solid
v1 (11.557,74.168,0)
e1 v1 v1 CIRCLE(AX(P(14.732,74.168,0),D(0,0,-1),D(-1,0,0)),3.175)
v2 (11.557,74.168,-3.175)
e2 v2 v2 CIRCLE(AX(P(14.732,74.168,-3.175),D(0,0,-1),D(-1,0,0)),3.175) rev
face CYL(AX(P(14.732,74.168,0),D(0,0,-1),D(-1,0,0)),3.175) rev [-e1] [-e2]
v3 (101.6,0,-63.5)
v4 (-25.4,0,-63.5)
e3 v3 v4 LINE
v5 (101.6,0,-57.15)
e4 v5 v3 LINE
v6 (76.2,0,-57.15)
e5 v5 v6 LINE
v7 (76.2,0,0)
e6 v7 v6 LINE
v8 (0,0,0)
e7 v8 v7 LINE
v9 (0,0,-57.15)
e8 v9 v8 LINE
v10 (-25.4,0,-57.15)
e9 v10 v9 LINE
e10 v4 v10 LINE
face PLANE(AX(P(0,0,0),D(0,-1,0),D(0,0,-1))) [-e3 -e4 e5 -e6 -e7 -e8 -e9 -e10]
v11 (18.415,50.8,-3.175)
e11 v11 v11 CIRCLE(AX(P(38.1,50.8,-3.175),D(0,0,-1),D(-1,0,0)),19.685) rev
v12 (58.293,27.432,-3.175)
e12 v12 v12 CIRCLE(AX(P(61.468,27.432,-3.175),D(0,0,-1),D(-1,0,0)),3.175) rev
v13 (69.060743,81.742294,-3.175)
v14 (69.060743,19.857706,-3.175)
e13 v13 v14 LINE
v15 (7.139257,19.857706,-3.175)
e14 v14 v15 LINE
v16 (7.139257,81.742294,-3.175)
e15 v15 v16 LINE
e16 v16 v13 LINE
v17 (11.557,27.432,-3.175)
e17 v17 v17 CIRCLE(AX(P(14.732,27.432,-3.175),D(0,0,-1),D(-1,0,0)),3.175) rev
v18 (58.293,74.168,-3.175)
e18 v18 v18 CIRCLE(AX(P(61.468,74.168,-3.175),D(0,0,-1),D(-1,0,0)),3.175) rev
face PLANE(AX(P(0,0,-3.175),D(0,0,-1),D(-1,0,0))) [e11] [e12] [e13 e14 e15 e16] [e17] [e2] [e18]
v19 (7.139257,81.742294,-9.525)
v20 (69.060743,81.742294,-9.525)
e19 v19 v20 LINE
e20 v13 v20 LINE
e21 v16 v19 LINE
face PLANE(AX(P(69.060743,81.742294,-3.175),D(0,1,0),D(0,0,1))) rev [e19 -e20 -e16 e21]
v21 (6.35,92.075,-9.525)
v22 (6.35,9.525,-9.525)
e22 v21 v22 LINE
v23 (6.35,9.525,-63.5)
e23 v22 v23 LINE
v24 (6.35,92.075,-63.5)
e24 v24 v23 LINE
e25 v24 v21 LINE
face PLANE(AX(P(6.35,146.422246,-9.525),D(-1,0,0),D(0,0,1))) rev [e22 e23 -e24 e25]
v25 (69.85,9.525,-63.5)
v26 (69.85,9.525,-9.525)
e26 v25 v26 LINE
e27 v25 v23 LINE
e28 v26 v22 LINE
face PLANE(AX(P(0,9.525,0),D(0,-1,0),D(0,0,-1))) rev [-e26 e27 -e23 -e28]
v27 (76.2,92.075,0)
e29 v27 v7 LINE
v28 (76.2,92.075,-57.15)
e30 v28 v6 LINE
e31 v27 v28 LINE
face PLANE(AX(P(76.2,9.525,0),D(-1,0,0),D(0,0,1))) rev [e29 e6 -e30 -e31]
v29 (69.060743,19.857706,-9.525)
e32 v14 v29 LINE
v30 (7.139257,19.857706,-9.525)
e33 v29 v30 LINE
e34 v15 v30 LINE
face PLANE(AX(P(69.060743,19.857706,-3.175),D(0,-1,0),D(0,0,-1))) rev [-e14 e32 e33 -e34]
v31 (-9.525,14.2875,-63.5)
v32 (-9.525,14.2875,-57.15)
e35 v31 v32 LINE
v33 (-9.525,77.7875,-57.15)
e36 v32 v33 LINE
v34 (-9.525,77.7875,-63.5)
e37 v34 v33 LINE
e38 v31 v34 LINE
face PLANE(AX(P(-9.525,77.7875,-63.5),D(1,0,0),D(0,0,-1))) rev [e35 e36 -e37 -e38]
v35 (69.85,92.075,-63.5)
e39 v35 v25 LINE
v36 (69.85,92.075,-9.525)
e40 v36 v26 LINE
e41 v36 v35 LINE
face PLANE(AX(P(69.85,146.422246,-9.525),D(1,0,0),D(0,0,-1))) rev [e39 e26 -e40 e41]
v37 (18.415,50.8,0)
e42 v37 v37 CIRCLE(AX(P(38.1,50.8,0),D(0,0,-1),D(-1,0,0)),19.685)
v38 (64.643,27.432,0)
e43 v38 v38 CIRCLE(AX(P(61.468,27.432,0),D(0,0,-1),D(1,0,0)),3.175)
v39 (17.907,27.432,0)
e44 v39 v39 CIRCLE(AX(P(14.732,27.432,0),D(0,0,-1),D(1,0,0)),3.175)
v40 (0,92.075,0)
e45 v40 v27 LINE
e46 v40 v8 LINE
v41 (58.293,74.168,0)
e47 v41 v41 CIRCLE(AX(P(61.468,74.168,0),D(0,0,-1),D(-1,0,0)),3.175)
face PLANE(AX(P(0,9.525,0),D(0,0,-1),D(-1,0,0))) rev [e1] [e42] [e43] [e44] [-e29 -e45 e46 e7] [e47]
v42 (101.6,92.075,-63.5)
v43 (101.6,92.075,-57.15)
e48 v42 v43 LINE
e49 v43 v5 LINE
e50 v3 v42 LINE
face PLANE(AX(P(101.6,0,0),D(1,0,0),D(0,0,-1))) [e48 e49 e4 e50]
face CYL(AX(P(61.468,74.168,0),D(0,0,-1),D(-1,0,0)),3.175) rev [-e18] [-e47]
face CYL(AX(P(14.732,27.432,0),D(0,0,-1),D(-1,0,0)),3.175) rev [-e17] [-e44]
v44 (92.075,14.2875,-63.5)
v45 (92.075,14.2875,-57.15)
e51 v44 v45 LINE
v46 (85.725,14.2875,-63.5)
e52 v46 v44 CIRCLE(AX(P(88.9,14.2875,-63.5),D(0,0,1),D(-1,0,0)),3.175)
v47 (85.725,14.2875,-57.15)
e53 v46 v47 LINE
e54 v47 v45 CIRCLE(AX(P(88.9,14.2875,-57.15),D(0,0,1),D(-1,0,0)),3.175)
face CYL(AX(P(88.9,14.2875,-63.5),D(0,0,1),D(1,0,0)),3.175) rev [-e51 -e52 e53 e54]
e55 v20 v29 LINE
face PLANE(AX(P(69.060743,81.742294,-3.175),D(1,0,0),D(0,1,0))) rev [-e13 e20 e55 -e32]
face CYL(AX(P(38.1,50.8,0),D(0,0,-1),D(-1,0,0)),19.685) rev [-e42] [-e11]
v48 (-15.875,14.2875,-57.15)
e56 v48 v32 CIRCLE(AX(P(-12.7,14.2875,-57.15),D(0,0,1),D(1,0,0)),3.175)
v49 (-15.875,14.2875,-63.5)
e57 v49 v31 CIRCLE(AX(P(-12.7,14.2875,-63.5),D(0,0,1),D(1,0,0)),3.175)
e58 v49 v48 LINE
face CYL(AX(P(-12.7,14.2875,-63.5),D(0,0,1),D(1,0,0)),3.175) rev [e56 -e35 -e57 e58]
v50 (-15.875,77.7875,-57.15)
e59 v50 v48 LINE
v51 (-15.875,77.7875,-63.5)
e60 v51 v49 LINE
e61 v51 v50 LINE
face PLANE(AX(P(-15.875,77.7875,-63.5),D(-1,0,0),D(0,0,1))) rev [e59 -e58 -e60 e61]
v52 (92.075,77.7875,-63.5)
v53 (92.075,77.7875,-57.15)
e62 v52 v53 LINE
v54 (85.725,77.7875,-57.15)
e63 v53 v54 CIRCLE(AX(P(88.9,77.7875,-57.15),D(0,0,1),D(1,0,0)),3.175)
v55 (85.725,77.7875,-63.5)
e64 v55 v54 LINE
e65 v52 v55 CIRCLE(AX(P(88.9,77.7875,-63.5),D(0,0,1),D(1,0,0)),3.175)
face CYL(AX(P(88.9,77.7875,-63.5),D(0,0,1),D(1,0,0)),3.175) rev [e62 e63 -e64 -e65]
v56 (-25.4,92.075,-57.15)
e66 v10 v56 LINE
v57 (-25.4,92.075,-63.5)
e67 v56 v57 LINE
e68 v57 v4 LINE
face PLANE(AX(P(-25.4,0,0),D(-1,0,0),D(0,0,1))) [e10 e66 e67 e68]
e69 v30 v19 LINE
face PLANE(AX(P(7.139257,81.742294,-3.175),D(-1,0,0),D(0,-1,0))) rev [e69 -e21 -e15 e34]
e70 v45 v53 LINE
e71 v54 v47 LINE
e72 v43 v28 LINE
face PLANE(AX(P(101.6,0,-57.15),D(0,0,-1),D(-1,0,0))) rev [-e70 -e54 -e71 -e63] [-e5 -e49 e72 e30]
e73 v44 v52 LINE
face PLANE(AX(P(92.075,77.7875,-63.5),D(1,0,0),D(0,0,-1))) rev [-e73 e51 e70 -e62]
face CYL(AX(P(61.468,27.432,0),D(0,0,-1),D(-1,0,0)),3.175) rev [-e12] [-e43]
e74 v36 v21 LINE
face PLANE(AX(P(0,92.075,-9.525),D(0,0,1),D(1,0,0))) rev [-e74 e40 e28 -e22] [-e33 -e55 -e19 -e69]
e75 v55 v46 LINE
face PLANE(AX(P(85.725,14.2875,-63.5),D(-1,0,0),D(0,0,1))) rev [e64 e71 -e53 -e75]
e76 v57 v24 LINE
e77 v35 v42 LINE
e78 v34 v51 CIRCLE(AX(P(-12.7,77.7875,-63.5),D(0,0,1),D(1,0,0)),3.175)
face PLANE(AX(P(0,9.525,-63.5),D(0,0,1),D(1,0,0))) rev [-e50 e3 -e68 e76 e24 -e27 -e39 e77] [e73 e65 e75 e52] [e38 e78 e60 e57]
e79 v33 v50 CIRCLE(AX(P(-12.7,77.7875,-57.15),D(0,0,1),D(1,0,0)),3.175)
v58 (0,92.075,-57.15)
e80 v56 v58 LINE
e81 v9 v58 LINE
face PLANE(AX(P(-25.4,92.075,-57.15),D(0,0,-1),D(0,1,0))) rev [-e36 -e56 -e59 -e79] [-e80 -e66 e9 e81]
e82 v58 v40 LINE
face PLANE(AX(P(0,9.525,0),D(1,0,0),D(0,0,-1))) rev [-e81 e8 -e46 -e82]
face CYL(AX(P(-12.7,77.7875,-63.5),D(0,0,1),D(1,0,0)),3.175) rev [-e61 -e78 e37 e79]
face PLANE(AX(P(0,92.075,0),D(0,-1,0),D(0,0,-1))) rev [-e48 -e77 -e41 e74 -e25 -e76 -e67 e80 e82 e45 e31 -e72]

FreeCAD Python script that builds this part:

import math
import FreeCAD as App
import Part
import Sketcher
from FreeCAD import Vector
Q = App.Units.Quantity


def add_polygon(sketch, points):
    """Adds a closed chain of lines whose ends are joined by coincident constraints."""
    first, n = sketch.GeometryCount, len(points)
    for a, b in zip(points, points[1:] + points[:1]):
        sketch.addGeometry(Part.LineSegment(App.Vector(*a, 0), App.Vector(*b, 0)), False)
    for i in range(n):
        sketch.addConstraint(Sketcher.Constraint("Coincident", first + i, 2, first + (i + 1) % n, 1))

doc = App.newDocument("Part")
params = doc.addObject("Spreadsheet::Sheet", "Params")
for row, (alias, value) in enumerate([
    ("sketch1_width", "3 in"),
    ("sketch1_height", "2.5 in"),
    ("pad1_length", "0.375 in"),
    ("sketch2_width", "3 in"),
    ("sketch2_height", "0.375 in"),
    ("pad2_length", "3.25 in"),
    ("sketch3_diameter", "1.55 in"),
    ("sketch3_diameter2", "0.25 in"),
    ("pocket2_length", "0.25 in"),
    ("sketch5_width", "0.25 in"),
    ("sketch5_height", "2.125 in"),
    ("pad3_length", "3.25 in"),
    ("sketch6_height", "0.25 in"),
    ("sketch6_width", "3.625 in"),
    ("pad4_length", "1 in"),
    ("sketch7_height", "0.25 in"),
    ("sketch7_width", "3.625 in"),
    ("pad5_length", "1 in"),
    ("sketch8_height", "2.5 in"),
    ("sketch8_radius", "0.125 in"),
], start=1):
    params.set(f"A{row}", alias)
    params.set(f"B{row}", "=" + value)
    params.setAlias(f"B{row}", alias)

body = doc.addObject("PartDesign::Body", "Body")

# Sketch on XZ plane
sketch1 = doc.addObject("Sketcher::SketchObject", "Sketch")
body.addObject(sketch1)
sketch1.AttachmentSupport = (doc.XZ_Plane, [""])
sketch1.MapMode = "FlatFace"
add_polygon(sketch1, [(0, -64), (0, 0), (76, 0), (76, -64)])  # lines 0-3
sketch1.addConstraint([
    Sketcher.Constraint("Vertical", 0),
    Sketcher.Constraint("Horizontal", 1),
    Sketcher.Constraint("Vertical", 2),
    Sketcher.Constraint("Horizontal", 3),
    Sketcher.Constraint("Coincident", 0, 2, -1, 1),
    Sketcher.Constraint("DistanceX", 1, 1, 1, 2, Q("3 in")),
    Sketcher.Constraint("DistanceY", 0, 1, 0, 2, Q("2.5 in")),
])
sketch1.setExpression("Constraints[9]", "Params.sketch1_width")
sketch1.setExpression("Constraints[10]", "Params.sketch1_height")
pad1 = doc.addObject("PartDesign::Pad", "Pad")
body.addObject(pad1)
pad1.Profile = sketch1
pad1.setExpression("Length", "Params.pad1_length")
pad1.Reversed = True

# Sketch on XZ plane
sketch2 = doc.addObject("Sketcher::SketchObject", "Sketch001")
body.addObject(sketch2)
sketch2.AttachmentSupport = (doc.XZ_Plane, [""])
sketch2.MapMode = "FlatFace"
sketch2.AttachmentOffset = App.Placement(Vector(0, 0, -0.375 * 25.4), App.Rotation())
add_polygon(sketch2, [(0, -10), (0, 0), (76, 0), (76, -10)])  # lines 0-3
sketch2.addConstraint([
    Sketcher.Constraint("Vertical", 0),
    Sketcher.Constraint("Horizontal", 1),
    Sketcher.Constraint("Vertical", 2),
    Sketcher.Constraint("Horizontal", 3),
    Sketcher.Constraint("Coincident", 0, 2, -1, 1),
    Sketcher.Constraint("DistanceX", 1, 1, 1, 2, Q("3 in")),
    Sketcher.Constraint("DistanceY", 0, 1, 0, 2, Q("0.375 in")),
])
sketch2.setExpression("Constraints[9]", "Params.sketch2_width")
sketch2.setExpression("Constraints[10]", "Params.sketch2_height")
pad2 = doc.addObject("PartDesign::Pad", "Pad001")
body.addObject(pad2)
pad2.Profile = sketch2
pad2.setExpression("Length", "Params.pad2_length")
pad2.Reversed = True

# Sketch on XY plane
sketch3 = doc.addObject("Sketcher::SketchObject", "Sketch002")
body.addObject(sketch3)
sketch3.AttachmentSupport = (doc.XY_Plane, [""])
sketch3.MapMode = "FlatFace"
sketch3.AttachmentOffset = App.Placement(Vector(0, 0, -0.375 * 25.4), App.Rotation())
sketch3.addGeometry([
    Part.Circle(Vector(38.1, 50.8, 0), Vector(0, 0, 1), 19.7),  # 0
    Part.Circle(Vector(61.5, 74.2, 0), Vector(0, 0, 1), 3.2),  # 1
    Part.Circle(Vector(14.7, 74.2, 0), Vector(0, 0, 1), 3.2),  # 2
    Part.Circle(Vector(14.7, 27.4, 0), Vector(0, 0, 1), 3.2),  # 3
    Part.Circle(Vector(61.5, 27.4, 0), Vector(0, 0, 1), 3.2),  # 4
], False)
sketch3.addConstraint([
    Sketcher.Constraint("Equal", 1, 2),
    Sketcher.Constraint("Equal", 2, 3),
    Sketcher.Constraint("Equal", 3, 4),
    Sketcher.Constraint("Horizontal", 1, 3, 2, 3),
    Sketcher.Constraint("Horizontal", 3, 3, 4, 3),
    Sketcher.Constraint("Vertical", 2, 3, 3, 3),
    Sketcher.Constraint("Vertical", 1, 3, 4, 3),
    Sketcher.Constraint("Diameter", 0, Q("1.55 in")),
    Sketcher.Constraint("Diameter", 1, Q("0.25 in")),
    Sketcher.Constraint("DistanceY", -1, 1, 0, 3, Q("2 in")),
    Sketcher.Constraint("DistanceX", -1, 1, 0, 3, Q("1.5 in")),
    Sketcher.Constraint("DistanceX", -1, 1, 1, 3, Q("2.42 in")),
    Sketcher.Constraint("DistanceY", -1, 1, 1, 3, Q("2.92 in")),
    Sketcher.Constraint("DistanceX", -1, 1, 2, 3, Q("0.58 in")),
    Sketcher.Constraint("DistanceY", -1, 1, 3, 3, Q("1.08 in")),
])
sketch3.setExpression("Constraints[7]", "Params.sketch3_diameter")
sketch3.setExpression("Constraints[8]", "Params.sketch3_diameter2")
pocket1 = doc.addObject("PartDesign::Pocket", "Pocket")
body.addObject(pocket1)
pocket1.Profile = sketch3
pocket1.Type = "ThroughAll"
pocket1.Reversed = True

# Sketch on XY plane
sketch4 = doc.addObject("Sketcher::SketchObject", "Sketch003")
body.addObject(sketch4)
sketch4.AttachmentSupport = (doc.XY_Plane, [""])
sketch4.MapMode = "FlatFace"
sketch4.AttachmentOffset = App.Placement(Vector(0, 0, -0.375 * 25.4), App.Rotation())
add_polygon(sketch4, [(69, 82), (69, 20), (7, 20), (7, 82)])  # lines 0-3
sketch4.addConstraint([
    Sketcher.Constraint("Vertical", 0),
    Sketcher.Constraint("Horizontal", 1),
    Sketcher.Constraint("Vertical", 2),
    Sketcher.Constraint("Horizontal", 3),
    Sketcher.Constraint("DistanceX", 1, 2, 1, 1, 61.921487),
    Sketcher.Constraint("DistanceY", 0, 2, 0, 1, 61.884587),
    Sketcher.Constraint("DistanceX", -1, 1, 0, 2, 69.060743),
    Sketcher.Constraint("DistanceY", -1, 1, 0, 2, 19.857706),
])
pocket2 = doc.addObject("PartDesign::Pocket", "Pocket001")
body.addObject(pocket2)
pocket2.Profile = sketch4
pocket2.setExpression("Length", "Params.pocket2_length")
pocket2.Reversed = True

# Sketch on XZ plane
sketch5 = doc.addObject("Sketcher::SketchObject", "Sketch004")
body.addObject(sketch5)
sketch5.AttachmentSupport = (doc.XZ_Plane, [""])
sketch5.MapMode = "FlatFace"
sketch5.AttachmentOffset = App.Placement(Vector(0, 0, -0.375 * 25.4), App.Rotation())
add_polygon(sketch5, [(70, -64), (70, -10), (76, -10), (76, -64)])  # lines 0-3
add_polygon(sketch5, [(0, -64), (0, -10), (6, -10), (6, -64)])  # lines 4-7
sketch5.addConstraint([
    Sketcher.Constraint("Vertical", 0),
    Sketcher.Constraint("Horizontal", 1),
    Sketcher.Constraint("Vertical", 2),
    Sketcher.Constraint("Horizontal", 3),
    Sketcher.Constraint("Vertical", 4),
    Sketcher.Constraint("Horizontal", 5),
    Sketcher.Constraint("Vertical", 6),
    Sketcher.Constraint("Horizontal", 7),
    Sketcher.Constraint("PointOnObject", 4, 2, -2),
    Sketcher.Constraint("Horizontal", 1, 2, 4, 2),
    Sketcher.Constraint("Horizontal", 3, 2, 6, 2),
    Sketcher.Constraint("Equal", 3, 5),
    Sketcher.Constraint("DistanceX", -1, 1, 1, 2, Q("3 in")),
    Sketcher.Constraint("DistanceX", 1, 1, 1, 2, Q("0.25 in")),
    Sketcher.Constraint("DistanceY", 2, 2, -1, 1, Q("2.5 in")),
    Sketcher.Constraint("DistanceY", 0, 1, 0, 2, Q("2.125 in")),
])
sketch5.setExpression("Constraints[21]", "Params.sketch5_width")
sketch5.setExpression("Constraints[23]", "Params.sketch5_height")
pad3 = doc.addObject("PartDesign::Pad", "Pad002")
body.addObject(pad3)
pad3.Profile = sketch5
pad3.setExpression("Length", "Params.pad3_length")
pad3.Reversed = True

# Sketch on YZ plane
sketch6 = doc.addObject("Sketcher::SketchObject", "Sketch005")
body.addObject(sketch6)
sketch6.AttachmentSupport = (doc.YZ_Plane, [""])
sketch6.MapMode = "FlatFace"
add_polygon(sketch6, [(92, -64), (0, -64), (0, -57), (92, -57)])  # lines 0-3
sketch6.addConstraint([
    Sketcher.Constraint("Horizontal", 0),
    Sketcher.Constraint("Vertical", 1),
    Sketcher.Constraint("Horizontal", 2),
    Sketcher.Constraint("Vertical", 3),
    Sketcher.Constraint("PointOnObject", 0, 2, -2),
    Sketcher.Constraint("DistanceY", 1, 1, 1, 2, Q("0.25 in")),
    Sketcher.Constraint("DistanceY", 0, 2, -1, 1, Q("2.5 in")),
    Sketcher.Constraint("DistanceX", 0, 2, 0, 1, Q("3.625 in")),
])
sketch6.setExpression("Constraints[9]", "Params.sketch6_height")
sketch6.setExpression("Constraints[11]", "Params.sketch6_width")
pad4 = doc.addObject("PartDesign::Pad", "Pad003")
body.addObject(pad4)
pad4.Profile = sketch6
pad4.setExpression("Length", "Params.pad4_length")
pad4.Reversed = True

# Sketch on YZ plane
sketch7 = doc.addObject("Sketcher::SketchObject", "Sketch006")
body.addObject(sketch7)
sketch7.AttachmentSupport = (doc.YZ_Plane, [""])
sketch7.MapMode = "FlatFace"
sketch7.AttachmentOffset = App.Placement(Vector(0, 0, 3 * 25.4), App.Rotation())
add_polygon(sketch7, [(92, -57), (0, -57), (0, -64), (92, -64)])  # lines 0-3
sketch7.addConstraint([
    Sketcher.Constraint("Horizontal", 0),
    Sketcher.Constraint("Vertical", 1),
    Sketcher.Constraint("Horizontal", 2),
    Sketcher.Constraint("Vertical", 3),
    Sketcher.Constraint("PointOnObject", 0, 2, -2),
    Sketcher.Constraint("DistanceY", 1, 2, 1, 1, Q("0.25 in")),
    Sketcher.Constraint("DistanceY", 1, 2, -1, 1, Q("2.5 in")),
    Sketcher.Constraint("DistanceX", 0, 2, 0, 1, Q("3.625 in")),
])
sketch7.setExpression("Constraints[9]", "Params.sketch7_height")
sketch7.setExpression("Constraints[11]", "Params.sketch7_width")
pad5 = doc.addObject("PartDesign::Pad", "Pad004")
body.addObject(pad5)
pad5.Profile = sketch7
pad5.setExpression("Length", "Params.pad5_length")

# Sketch on XY plane
sketch8 = doc.addObject("Sketcher::SketchObject", "Sketch007")
body.addObject(sketch8)
sketch8.AttachmentSupport = (doc.XY_Plane, [""])
sketch8.MapMode = "FlatFace"
sketch8.AttachmentOffset = App.Placement(Vector(0, 0, -2.25 * 25.4), App.Rotation())
sketch8.addGeometry([
    Part.LineSegment(Vector(-15.9, 77.8, 0), Vector(-15.9, 14.3, 0)),  # 0
    Part.ArcOfCircle(Part.Circle(Vector(-12.7, 14.3, 0), Vector(0, 0, 1), 3.2), math.radians(180), math.radians(360)),  # 1
    Part.LineSegment(Vector(-9.5, 14.3, 0), Vector(-9.5, 77.8, 0)),  # 2
    Part.ArcOfCircle(Part.Circle(Vector(-12.7, 77.8, 0), Vector(0, 0, 1), 3.2), math.radians(0), math.radians(180)),  # 3
    Part.LineSegment(Vector(85.7, 77.8, 0), Vector(85.7, 14.3, 0)),  # 4
    Part.ArcOfCircle(Part.Circle(Vector(88.9, 14.3, 0), Vector(0, 0, 1), 3.2), math.radians(180), math.radians(360)),  # 5
    Part.LineSegment(Vector(92.1, 14.3, 0), Vector(92.1, 77.8, 0)),  # 6
    Part.ArcOfCircle(Part.Circle(Vector(88.9, 77.8, 0), Vector(0, 0, 1), 3.2), math.radians(0), math.radians(180)),  # 7
], False)
sketch8.addConstraint([
    Sketcher.Constraint("Tangent", 0, 2, 1, 1),
    Sketcher.Constraint("Tangent", 1, 2, 2, 1),
    Sketcher.Constraint("Tangent", 2, 2, 3, 1),
    Sketcher.Constraint("Tangent", 3, 2, 0, 1),
    Sketcher.Constraint("Tangent", 4, 2, 5, 1),
    Sketcher.Constraint("Tangent", 5, 2, 6, 1),
    Sketcher.Constraint("Tangent", 6, 2, 7, 1),
    Sketcher.Constraint("Tangent", 7, 2, 4, 1),
    Sketcher.Constraint("Vertical", 0),
    Sketcher.Constraint("Vertical", 2),
    Sketcher.Constraint("Vertical", 4),
    Sketcher.Constraint("Vertical", 6),
    Sketcher.Constraint("Equal", 3, 5),
    Sketcher.Constraint("Horizontal", 1, 3, 5, 3),
    Sketcher.Constraint("Horizontal", 3, 3, 7, 3),
    Sketcher.Constraint("DistanceY", 0, 2, 0, 1, Q("2.5 in")),
    Sketcher.Constraint("Radius", 1, Q("0.125 in")),
    Sketcher.Constraint("DistanceX", 1, 3, 5, 3, Q("4 in")),
    Sketcher.Constraint("DistanceX", 1, 3, -1, 1, Q("0.5 in")),
    Sketcher.Constraint("DistanceY", -1, 1, 1, 3, Q("0.5625 in")),
])
sketch8.setExpression("Constraints[15]", "Params.sketch8_height")
sketch8.setExpression("Constraints[16]", "Params.sketch8_radius")
pocket3 = doc.addObject("PartDesign::Pocket", "Pocket002")
body.addObject(pocket3)
pocket3.Profile = sketch8
pocket3.Type = "ThroughAll"

doc.recompute()
